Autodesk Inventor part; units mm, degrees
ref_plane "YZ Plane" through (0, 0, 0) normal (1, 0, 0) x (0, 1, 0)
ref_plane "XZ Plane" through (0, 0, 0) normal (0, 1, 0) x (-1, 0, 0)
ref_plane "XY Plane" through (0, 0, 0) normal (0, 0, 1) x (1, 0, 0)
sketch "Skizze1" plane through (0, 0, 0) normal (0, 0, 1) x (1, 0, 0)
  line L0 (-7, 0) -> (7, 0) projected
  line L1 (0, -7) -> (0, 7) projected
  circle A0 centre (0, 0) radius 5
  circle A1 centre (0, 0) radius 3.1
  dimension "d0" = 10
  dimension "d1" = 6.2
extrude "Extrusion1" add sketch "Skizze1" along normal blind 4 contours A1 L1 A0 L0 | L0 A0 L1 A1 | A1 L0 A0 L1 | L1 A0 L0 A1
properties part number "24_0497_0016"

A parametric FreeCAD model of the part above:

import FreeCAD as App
import Part
import Sketcher

V = App.Vector

doc = App.newDocument("Part")
body = doc.addObject("PartDesign::Body", "Body")

# Sketch on XY plane
sketch1 = body.newObject("Sketcher::SketchObject", "Sketch")
sketch1.AttachmentSupport = (doc.getObject("XY_Plane"), [""])
sketch1.MapMode = "FlatFace"
sketch1.addGeometry([
    Part.Circle(V(0, 0, 0), V(0, 0, 1), 5),
    Part.Circle(V(0, 0, 0), V(0, 0, 1), 3.1),
], False)
sketch1.addConstraint([
    Sketcher.Constraint("Coincident", 0, 3, -1, 1),
    Sketcher.Constraint("Coincident", 1, 3, -1, 1),
    Sketcher.Constraint("Diameter", 0, 10.0),
    Sketcher.Constraint("Diameter", 1, 6.2),
])
pad1 = body.newObject("PartDesign::Pad", "Pad")
pad1.Profile = sketch1
pad1.Length = 4

doc.recompute()
